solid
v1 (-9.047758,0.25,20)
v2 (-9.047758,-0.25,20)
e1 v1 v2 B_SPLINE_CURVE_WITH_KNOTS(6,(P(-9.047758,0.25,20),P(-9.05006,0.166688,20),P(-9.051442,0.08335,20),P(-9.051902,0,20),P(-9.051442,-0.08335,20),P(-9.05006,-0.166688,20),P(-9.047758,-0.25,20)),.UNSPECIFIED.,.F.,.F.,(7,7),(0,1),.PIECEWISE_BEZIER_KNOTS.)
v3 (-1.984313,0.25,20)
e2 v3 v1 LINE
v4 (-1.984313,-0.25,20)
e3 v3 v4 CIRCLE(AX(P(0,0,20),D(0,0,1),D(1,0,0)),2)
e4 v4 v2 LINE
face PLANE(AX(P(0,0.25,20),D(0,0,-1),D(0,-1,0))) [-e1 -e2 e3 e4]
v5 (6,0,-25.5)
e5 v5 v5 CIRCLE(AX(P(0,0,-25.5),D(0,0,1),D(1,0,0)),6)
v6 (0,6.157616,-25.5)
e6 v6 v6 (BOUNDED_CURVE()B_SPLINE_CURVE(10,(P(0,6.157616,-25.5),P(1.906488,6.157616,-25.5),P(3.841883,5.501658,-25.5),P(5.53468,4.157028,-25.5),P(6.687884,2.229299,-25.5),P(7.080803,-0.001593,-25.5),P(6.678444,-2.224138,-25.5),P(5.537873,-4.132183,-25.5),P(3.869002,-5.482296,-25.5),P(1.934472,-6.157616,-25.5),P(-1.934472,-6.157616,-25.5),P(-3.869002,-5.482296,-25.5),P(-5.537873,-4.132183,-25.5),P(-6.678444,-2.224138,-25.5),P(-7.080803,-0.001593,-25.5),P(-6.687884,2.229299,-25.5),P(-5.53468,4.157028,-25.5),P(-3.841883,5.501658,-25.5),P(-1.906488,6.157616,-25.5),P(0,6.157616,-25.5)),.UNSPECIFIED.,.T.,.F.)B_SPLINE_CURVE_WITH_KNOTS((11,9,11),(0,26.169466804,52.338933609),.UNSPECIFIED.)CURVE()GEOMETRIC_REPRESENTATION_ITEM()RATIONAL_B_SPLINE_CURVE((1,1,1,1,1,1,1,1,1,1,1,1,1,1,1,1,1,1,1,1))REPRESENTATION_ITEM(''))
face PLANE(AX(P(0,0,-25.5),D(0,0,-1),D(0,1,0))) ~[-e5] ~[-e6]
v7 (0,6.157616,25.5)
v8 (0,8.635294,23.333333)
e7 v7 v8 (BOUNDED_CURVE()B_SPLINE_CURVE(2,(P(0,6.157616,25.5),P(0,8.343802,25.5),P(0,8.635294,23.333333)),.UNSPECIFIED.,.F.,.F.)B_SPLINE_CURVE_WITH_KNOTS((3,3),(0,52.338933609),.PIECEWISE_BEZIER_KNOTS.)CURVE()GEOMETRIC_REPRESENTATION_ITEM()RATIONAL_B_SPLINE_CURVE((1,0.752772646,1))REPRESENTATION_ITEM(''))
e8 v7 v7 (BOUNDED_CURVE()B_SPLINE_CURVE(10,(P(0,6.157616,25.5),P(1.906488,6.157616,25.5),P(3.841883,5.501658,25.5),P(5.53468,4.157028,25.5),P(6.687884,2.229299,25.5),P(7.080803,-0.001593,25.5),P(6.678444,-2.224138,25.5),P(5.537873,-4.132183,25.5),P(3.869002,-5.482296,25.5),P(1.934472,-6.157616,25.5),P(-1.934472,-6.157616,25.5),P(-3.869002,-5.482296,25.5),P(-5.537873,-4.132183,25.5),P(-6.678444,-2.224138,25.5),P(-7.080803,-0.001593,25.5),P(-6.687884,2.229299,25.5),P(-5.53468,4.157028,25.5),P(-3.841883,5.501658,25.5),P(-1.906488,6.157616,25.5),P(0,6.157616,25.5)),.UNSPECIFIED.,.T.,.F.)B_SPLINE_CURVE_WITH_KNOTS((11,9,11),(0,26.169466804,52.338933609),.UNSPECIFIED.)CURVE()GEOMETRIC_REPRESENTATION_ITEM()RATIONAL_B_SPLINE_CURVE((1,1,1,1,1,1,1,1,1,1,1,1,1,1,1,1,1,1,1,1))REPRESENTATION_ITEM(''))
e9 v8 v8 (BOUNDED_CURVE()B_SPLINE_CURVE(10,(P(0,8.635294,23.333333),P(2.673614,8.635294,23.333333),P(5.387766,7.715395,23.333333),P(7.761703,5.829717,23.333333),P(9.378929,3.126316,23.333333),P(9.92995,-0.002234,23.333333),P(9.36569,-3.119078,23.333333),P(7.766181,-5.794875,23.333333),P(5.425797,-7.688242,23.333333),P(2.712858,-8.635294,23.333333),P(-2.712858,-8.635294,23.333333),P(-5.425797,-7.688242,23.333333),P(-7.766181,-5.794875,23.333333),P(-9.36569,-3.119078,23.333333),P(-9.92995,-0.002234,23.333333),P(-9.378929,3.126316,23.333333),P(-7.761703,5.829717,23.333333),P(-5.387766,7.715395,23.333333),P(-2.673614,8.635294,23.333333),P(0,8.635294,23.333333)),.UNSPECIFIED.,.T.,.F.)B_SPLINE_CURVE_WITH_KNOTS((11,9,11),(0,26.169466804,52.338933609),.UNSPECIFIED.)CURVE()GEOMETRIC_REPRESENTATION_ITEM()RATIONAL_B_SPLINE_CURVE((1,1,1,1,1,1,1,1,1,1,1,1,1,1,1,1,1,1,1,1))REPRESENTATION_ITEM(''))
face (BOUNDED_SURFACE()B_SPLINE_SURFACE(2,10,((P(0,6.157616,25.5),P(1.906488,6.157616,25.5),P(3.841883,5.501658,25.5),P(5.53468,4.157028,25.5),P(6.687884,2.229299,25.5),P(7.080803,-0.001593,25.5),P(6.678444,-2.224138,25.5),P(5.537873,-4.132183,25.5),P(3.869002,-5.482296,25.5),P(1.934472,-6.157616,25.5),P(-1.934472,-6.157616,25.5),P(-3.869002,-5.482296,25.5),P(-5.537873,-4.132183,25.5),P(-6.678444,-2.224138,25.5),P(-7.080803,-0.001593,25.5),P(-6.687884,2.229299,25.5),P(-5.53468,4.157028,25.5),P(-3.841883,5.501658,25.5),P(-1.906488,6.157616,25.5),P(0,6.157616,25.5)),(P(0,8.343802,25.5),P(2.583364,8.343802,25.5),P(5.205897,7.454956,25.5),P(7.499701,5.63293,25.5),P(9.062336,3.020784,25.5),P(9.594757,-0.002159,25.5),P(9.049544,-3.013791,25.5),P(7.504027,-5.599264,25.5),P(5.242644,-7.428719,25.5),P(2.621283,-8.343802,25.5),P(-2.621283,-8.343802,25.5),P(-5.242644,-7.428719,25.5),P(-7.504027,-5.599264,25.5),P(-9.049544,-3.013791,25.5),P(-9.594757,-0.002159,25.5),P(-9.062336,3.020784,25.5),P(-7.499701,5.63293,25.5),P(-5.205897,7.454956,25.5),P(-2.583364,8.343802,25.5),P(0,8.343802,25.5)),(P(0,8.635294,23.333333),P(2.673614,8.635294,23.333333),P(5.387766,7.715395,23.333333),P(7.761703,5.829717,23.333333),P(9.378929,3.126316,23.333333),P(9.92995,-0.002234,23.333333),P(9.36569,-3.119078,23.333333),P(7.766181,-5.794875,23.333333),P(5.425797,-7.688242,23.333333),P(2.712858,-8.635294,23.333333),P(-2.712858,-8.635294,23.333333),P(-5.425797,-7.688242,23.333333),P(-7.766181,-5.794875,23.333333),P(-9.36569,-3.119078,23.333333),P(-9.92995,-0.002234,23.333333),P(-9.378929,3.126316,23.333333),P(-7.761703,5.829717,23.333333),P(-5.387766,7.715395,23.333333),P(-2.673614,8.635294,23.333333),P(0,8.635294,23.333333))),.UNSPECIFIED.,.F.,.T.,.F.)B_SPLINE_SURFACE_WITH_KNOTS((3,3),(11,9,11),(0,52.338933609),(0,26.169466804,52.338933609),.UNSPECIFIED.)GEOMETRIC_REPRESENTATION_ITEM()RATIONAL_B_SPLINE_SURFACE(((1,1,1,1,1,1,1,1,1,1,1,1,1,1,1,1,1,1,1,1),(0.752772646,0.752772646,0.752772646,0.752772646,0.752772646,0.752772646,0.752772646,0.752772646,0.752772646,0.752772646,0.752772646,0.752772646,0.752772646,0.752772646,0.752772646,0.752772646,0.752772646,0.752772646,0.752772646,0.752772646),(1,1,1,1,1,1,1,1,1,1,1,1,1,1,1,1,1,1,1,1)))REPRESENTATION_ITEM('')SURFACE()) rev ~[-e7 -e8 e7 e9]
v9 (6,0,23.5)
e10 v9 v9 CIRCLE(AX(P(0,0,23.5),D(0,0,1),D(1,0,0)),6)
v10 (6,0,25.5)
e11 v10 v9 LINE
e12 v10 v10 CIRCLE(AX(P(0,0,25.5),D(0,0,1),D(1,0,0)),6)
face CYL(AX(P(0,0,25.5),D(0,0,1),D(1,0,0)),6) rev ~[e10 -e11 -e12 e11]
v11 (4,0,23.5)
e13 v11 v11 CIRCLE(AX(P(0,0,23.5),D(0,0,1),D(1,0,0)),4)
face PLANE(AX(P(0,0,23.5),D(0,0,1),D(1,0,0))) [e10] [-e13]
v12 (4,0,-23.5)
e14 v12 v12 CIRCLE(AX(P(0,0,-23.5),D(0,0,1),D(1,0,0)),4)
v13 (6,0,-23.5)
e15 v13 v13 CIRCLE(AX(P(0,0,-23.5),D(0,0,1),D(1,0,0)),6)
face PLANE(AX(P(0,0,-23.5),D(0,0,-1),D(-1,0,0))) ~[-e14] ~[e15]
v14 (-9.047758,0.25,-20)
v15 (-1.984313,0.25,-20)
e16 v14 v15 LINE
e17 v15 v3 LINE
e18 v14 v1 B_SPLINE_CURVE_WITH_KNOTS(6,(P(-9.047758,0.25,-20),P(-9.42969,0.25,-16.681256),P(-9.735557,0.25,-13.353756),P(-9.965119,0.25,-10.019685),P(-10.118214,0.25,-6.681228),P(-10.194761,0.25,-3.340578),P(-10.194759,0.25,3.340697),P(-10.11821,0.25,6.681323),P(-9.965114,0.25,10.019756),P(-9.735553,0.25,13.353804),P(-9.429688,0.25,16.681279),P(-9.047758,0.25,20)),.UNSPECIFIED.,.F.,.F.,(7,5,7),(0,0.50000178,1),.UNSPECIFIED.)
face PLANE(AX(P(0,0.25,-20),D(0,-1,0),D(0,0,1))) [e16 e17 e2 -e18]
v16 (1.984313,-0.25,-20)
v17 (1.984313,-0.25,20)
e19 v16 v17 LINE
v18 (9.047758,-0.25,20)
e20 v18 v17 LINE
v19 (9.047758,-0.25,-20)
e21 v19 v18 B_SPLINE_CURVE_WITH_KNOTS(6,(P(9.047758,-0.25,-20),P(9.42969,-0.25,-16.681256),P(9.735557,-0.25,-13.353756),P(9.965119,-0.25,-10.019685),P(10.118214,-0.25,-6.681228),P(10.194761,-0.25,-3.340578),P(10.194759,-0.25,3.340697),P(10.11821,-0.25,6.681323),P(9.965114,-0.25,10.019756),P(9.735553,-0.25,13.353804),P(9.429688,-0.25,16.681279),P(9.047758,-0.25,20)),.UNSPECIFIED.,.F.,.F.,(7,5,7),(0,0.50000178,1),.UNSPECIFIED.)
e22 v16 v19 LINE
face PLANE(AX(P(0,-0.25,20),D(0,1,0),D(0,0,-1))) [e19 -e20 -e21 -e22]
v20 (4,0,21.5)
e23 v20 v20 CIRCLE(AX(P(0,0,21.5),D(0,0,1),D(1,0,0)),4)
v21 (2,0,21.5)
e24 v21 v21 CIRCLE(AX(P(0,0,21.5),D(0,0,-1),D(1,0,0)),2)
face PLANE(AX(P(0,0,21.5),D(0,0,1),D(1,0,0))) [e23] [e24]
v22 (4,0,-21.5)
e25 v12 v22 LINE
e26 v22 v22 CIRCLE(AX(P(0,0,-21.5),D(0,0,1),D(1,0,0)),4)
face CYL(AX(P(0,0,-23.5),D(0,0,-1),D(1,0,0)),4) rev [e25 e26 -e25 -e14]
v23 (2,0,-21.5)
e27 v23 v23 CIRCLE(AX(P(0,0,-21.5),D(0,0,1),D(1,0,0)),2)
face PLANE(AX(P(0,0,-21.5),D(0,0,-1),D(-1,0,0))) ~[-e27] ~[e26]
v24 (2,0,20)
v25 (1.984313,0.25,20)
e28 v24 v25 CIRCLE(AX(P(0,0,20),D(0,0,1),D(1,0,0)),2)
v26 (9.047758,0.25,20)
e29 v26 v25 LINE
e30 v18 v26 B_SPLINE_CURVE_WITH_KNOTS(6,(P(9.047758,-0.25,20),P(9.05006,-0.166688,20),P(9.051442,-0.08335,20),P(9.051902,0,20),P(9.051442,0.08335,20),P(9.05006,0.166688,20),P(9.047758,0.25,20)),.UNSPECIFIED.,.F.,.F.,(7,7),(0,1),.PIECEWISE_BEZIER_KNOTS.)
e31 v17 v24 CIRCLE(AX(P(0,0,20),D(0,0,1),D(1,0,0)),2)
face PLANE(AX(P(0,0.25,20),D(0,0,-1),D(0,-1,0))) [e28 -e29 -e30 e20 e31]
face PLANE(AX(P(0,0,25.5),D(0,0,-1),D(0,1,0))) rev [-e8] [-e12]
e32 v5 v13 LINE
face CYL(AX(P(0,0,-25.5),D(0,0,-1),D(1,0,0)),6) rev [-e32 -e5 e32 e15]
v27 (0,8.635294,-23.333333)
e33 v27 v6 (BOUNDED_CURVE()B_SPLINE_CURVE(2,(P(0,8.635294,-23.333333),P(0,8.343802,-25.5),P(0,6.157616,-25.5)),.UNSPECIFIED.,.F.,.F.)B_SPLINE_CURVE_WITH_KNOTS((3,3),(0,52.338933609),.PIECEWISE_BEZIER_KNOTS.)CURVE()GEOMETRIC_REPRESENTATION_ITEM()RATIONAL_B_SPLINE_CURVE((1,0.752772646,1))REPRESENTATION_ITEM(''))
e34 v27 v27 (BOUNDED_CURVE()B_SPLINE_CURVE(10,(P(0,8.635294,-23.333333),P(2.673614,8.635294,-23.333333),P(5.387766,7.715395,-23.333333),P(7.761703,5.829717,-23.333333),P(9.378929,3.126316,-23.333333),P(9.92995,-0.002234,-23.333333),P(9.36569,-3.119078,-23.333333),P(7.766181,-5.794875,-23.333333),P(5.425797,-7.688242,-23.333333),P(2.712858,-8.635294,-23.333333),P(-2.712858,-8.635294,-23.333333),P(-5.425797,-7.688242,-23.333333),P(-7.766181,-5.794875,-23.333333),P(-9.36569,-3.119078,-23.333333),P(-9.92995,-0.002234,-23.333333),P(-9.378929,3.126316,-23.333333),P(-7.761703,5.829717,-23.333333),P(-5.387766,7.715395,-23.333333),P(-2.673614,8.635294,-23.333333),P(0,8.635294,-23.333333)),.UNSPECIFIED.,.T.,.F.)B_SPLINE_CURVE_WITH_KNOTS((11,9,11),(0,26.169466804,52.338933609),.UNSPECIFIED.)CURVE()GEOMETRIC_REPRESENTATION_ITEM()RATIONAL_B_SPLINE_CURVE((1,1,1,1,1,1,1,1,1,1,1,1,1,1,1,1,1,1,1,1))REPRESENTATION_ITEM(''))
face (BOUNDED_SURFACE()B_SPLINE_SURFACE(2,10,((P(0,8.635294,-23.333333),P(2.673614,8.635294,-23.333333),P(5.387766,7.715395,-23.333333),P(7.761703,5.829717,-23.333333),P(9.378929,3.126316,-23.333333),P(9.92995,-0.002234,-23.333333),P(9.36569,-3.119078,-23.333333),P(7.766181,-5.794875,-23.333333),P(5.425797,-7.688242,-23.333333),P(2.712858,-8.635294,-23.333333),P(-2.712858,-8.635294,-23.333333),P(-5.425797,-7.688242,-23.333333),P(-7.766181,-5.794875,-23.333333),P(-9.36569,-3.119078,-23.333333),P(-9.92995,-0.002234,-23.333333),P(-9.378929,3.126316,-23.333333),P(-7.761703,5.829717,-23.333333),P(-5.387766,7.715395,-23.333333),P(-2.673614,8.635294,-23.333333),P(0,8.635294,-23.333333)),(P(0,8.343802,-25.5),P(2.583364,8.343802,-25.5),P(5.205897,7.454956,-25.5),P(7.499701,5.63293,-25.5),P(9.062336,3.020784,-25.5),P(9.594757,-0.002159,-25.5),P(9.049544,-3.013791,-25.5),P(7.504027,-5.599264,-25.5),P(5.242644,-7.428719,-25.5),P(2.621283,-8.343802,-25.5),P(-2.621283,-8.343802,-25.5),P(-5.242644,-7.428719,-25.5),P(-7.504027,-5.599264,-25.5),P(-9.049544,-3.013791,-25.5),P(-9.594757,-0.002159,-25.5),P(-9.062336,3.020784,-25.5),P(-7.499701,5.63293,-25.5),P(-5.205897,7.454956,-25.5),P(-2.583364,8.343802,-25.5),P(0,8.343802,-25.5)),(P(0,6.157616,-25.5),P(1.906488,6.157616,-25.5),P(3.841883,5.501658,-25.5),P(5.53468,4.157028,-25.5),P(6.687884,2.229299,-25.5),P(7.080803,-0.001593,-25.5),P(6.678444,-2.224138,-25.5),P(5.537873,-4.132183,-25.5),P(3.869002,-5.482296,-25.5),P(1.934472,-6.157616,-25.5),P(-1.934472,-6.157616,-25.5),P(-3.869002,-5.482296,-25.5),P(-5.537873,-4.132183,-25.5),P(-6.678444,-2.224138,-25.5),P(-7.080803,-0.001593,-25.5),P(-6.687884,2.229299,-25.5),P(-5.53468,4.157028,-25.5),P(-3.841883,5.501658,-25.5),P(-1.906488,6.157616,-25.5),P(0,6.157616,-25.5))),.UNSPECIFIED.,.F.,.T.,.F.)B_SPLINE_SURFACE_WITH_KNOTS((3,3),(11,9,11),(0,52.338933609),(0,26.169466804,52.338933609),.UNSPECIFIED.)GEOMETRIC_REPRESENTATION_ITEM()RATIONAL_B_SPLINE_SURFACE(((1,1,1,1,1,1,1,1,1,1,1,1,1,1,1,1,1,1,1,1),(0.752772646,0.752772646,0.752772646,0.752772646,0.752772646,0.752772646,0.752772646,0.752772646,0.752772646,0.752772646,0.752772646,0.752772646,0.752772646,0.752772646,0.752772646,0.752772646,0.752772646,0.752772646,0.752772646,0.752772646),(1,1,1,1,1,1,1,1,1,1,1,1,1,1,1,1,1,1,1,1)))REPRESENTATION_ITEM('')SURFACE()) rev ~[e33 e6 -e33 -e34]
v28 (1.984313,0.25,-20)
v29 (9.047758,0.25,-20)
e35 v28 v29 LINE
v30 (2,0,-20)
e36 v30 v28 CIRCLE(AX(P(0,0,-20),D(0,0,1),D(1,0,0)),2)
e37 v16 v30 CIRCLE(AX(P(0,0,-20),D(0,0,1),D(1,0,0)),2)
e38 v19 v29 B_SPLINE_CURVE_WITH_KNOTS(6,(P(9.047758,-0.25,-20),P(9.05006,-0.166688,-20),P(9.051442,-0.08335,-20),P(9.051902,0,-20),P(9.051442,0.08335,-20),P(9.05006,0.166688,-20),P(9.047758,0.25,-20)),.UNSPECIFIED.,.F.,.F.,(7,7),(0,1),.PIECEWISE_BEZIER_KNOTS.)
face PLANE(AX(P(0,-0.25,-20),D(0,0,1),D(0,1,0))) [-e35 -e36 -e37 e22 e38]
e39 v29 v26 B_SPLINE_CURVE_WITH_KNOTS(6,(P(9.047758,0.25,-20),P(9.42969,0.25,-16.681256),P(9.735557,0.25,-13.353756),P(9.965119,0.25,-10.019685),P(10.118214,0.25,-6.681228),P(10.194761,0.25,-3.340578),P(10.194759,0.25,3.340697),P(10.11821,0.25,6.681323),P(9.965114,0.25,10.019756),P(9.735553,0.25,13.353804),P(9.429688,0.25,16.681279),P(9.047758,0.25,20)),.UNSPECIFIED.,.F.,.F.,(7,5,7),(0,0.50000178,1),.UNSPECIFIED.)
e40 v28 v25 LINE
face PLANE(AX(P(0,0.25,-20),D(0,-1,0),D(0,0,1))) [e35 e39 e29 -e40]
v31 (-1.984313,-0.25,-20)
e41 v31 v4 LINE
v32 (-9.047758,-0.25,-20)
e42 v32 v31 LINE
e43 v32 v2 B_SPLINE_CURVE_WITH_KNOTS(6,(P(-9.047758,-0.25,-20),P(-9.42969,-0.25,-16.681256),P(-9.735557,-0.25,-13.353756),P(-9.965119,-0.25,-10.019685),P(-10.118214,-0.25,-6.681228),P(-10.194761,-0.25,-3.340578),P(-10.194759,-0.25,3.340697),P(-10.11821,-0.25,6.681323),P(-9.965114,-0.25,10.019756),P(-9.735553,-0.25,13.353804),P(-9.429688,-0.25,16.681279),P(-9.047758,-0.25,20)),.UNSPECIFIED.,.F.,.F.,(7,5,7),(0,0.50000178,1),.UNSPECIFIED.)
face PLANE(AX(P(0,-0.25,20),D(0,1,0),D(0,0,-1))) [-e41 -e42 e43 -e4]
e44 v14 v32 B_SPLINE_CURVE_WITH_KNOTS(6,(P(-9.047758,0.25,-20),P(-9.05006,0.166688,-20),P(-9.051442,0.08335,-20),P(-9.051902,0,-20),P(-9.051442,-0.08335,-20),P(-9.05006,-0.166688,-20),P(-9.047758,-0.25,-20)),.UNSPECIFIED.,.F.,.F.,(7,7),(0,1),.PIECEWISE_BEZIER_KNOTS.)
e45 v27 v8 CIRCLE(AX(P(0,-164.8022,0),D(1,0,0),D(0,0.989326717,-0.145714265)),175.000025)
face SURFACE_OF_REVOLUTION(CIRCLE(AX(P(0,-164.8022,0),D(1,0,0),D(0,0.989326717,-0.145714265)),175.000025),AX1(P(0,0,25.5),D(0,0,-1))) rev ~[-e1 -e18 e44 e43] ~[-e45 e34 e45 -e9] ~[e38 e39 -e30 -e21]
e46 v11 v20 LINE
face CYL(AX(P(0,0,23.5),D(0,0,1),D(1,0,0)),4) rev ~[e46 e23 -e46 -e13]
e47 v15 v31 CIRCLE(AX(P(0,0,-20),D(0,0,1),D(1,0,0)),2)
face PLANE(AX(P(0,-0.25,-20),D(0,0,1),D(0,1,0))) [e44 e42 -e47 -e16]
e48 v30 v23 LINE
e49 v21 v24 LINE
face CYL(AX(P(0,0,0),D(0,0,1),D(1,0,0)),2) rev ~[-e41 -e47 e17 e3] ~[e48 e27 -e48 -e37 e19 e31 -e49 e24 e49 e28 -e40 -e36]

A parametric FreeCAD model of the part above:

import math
import FreeCAD as App
import Part
import Sketcher


def edges_at(feature, points):
    """Names of the edges that pass closest to the given points."""
    edges = feature.Shape.Edges
    near = lambda p: min(range(len(edges)), key=lambda i: edges[i].distToShape(Part.Vertex(*p))[0])
    return sorted({f"Edge{near(p) + 1}" for p in points})

doc = App.newDocument("Part")
body = doc.addObject("PartDesign::Body", "Body")

# Sketch on YZ plane
sketch1 = body.newObject("Sketcher::SketchObject", "Sketch")
sketch1.AttachmentSupport = (doc.getObject("YZ_Plane"), [""])
sketch1.MapMode = "FlatFace"
sketch1.addGeometry([
    Part.LineSegment(App.Vector(8.33, 25.5, 0), App.Vector(0, 25.5, 0)),
    Part.LineSegment(App.Vector(0, 25.5, 0), App.Vector(0, -25.5, 0)),
    Part.LineSegment(App.Vector(0, -25.5, 0), App.Vector(8.33, -25.5, 0)),
    Part.ArcOfCircle(Part.Circle(App.Vector(-164.8022, 0, 0), App.Vector(0, 0, 1), 175.000025), math.radians(-8.378643), math.radians(8.378643)),
], False)
sketch1.addConstraint([
    Sketcher.Constraint("Coincident", 0, 2, 1, 1),
    Sketcher.Constraint("Coincident", 1, 2, 2, 1),
    Sketcher.Constraint("Coincident", 2, 2, 3, 1),
    Sketcher.Constraint("Coincident", 3, 2, 0, 1),
    Sketcher.Constraint("Horizontal", 0),
    Sketcher.Constraint("Vertical", 1),
    Sketcher.Constraint("Horizontal", 2),
    Sketcher.Constraint("Symmetric", 0, 2, 1, 2, -1, 1),
    Sketcher.Constraint("PointOnObject", 3, 3, -1),
    Sketcher.Constraint("Radius", 3, 175.0),
    Sketcher.Constraint("DistanceY", 1, 2, 1, 1, 51.0),
    Sketcher.Constraint("DistanceX", 0, 2, 0, 1, 8.33),
])
revolution = body.newObject("PartDesign::Revolution", "Revolution")
revolution.Profile = sketch1
revolution.ReferenceAxis = (sketch1, ["V_Axis"])
revolution.Angle = 360

# Sketch on XY plane
sketch2 = body.newObject("Sketcher::SketchObject", "Sketch001")
sketch2.AttachmentSupport = (doc.getObject("XY_Plane"), [""])
sketch2.MapMode = "FlatFace"
sketch2.AttachmentOffset = App.Placement(App.Vector(0, 0, 25.5), App.Rotation())
sketch2.addGeometry(Part.Circle(App.Vector(0, 0, 0), App.Vector(0, 0, 1), 6), False)
sketch2.addConstraint([
    Sketcher.Constraint("Coincident", 0, 3, -1, 1),
    Sketcher.Constraint("Diameter", 0, 12.0),
])
pocket1 = body.newObject("PartDesign::Pocket", "Pocket")
pocket1.Profile = sketch2
pocket1.Length = 2

# Sketch on XY plane
sketch3 = body.newObject("Sketcher::SketchObject", "Sketch002")
sketch3.AttachmentSupport = (doc.getObject("XY_Plane"), [""])
sketch3.MapMode = "FlatFace"
sketch3.AttachmentOffset = App.Placement(App.Vector(0, 0, 23.5), App.Rotation())
sketch3.addGeometry(Part.Circle(App.Vector(0, 0, 0), App.Vector(0, 0, 1), 4), False)
sketch3.addConstraint([
    Sketcher.Constraint("Coincident", 0, 3, -1, 1),
    Sketcher.Constraint("Diameter", 0, 8.0),
])
pocket2 = body.newObject("PartDesign::Pocket", "Pocket001")
pocket2.Profile = sketch3
pocket2.Length = 2
doc.recompute()

fillet = body.newObject("PartDesign::Fillet", "Fillet")
fillet.Base = (pocket2, edges_at(pocket2, [(0, -8.33, 25.5)]))
fillet.Radius = 2.5
doc.recompute()

mirrored = body.newObject("PartDesign::Mirrored", "Mirrored")
mirrored.Originals = [pocket1, pocket2, fillet]
mirrored.MirrorPlane = (doc.getObject("XY_Plane"), [""])
body.Tip = mirrored

# Sketch on XY plane
sketch4 = body.newObject("Sketcher::SketchObject", "Sketch003")
sketch4.AttachmentSupport = (doc.getObject("XY_Plane"), [""])
sketch4.MapMode = "FlatFace"
sketch4.addGeometry(Part.Circle(App.Vector(0, 0, 0), App.Vector(0, 0, 1), 2), False)
sketch4.addConstraint([
    Sketcher.Constraint("Coincident", 0, 3, -1, 1),
    Sketcher.Constraint("Diameter", 0, 4.0),
])
pocket3 = body.newObject("PartDesign::Pocket", "Pocket002")
pocket3.Profile = sketch4
pocket3.Length = 805.5
pocket3.Midplane = True

# Sketch on YZ plane
sketch5 = body.newObject("Sketcher::SketchObject", "Sketch004")
sketch5.AttachmentSupport = (doc.getObject("YZ_Plane"), [""])
sketch5.MapMode = "FlatFace"
sketch5.addGeometry([
    Part.LineSegment(App.Vector(-0.25, 20, 0), App.Vector(-0.25, -20, 0)),
    Part.LineSegment(App.Vector(-0.25, -20, 0), App.Vector(0.25, -20, 0)),
    Part.LineSegment(App.Vector(0.25, -20, 0), App.Vector(0.25, 20, 0)),
    Part.LineSegment(App.Vector(0.25, 20, 0), App.Vector(-0.25, 20, 0)),
], False)
sketch5.addConstraint([
    Sketcher.Constraint("Coincident", 0, 2, 1, 1),
    Sketcher.Constraint("Coincident", 1, 2, 2, 1),
    Sketcher.Constraint("Coincident", 2, 2, 3, 1),
    Sketcher.Constraint("Coincident", 3, 2, 0, 1),
    Sketcher.Constraint("Vertical", 0),
    Sketcher.Constraint("Horizontal", 1),
    Sketcher.Constraint("Vertical", 2),
    Sketcher.Constraint("Horizontal", 3),
    Sketcher.Constraint("Symmetric", 0, 2, 2, 2, -1, 1),
    Sketcher.Constraint("DistanceY", 0, 2, 0, 1, 40.0),
    Sketcher.Constraint("DistanceX", 1, 1, 1, 2, 0.5),
])
pocket4 = body.newObject("PartDesign::Pocket", "Pocket003")
pocket4.Profile = sketch5
pocket4.Length = 40
pocket4.Midplane = True

doc.recompute()
